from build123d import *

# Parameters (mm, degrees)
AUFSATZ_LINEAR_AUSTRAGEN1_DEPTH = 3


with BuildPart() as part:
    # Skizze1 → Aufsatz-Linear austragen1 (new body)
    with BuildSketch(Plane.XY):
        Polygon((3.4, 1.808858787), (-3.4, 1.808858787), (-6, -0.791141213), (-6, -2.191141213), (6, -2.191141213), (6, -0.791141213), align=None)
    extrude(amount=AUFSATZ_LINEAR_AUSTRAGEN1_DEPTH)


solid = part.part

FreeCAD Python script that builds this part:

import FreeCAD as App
import Part
import Sketcher

doc = App.newDocument("Part")
body = doc.addObject("PartDesign::Body", "Body")

sketch1 = body.newObject("Sketcher::SketchObject", "Sketch")
sketch1.AttachmentSupport = (doc.getObject("XY_Plane"), [""])
sketch1.MapMode = "FlatFace"
sketch1.addGeometry(Part.LineSegment(App.Vector(3.4, 1.808859, 0), App.Vector(-3.4, 1.808859, 0)), False)
sketch1.addGeometry(Part.LineSegment(App.Vector(-3.4, 1.808859, 0), App.Vector(-6, -0.791141, 0)), False)
sketch1.addGeometry(Part.LineSegment(App.Vector(-6, -0.791141, 0), App.Vector(-6, -2.191141, 0)), False)
sketch1.addGeometry(Part.LineSegment(App.Vector(-6, -2.191141, 0), App.Vector(6, -2.191141, 0)), False)
sketch1.addGeometry(Part.LineSegment(App.Vector(6, -2.191141, 0), App.Vector(6, -0.791141, 0)), False)
sketch1.addGeometry(Part.LineSegment(App.Vector(6, -0.791141, 0), App.Vector(3.4, 1.808859, 0)), False)
sketch1.addConstraint(Sketcher.Constraint("Coincident", 0, 2, 1, 1))
sketch1.addConstraint(Sketcher.Constraint("Coincident", 1, 2, 2, 1))
sketch1.addConstraint(Sketcher.Constraint("Coincident", 2, 2, 3, 1))
sketch1.addConstraint(Sketcher.Constraint("Coincident", 3, 2, 4, 1))
sketch1.addConstraint(Sketcher.Constraint("Coincident", 4, 2, 5, 1))
sketch1.addConstraint(Sketcher.Constraint("Coincident", 5, 2, 0, 1))
sketch1.addConstraint(Sketcher.Constraint("Horizontal", 0))
sketch1.addConstraint(Sketcher.Constraint("Vertical", 2))
sketch1.addConstraint(Sketcher.Constraint("Horizontal", 3))
sketch1.addConstraint(Sketcher.Constraint("Vertical", 4))
sketch1.addConstraint(Sketcher.Constraint("Symmetric", 1, 2, 4, 2, -2))
sketch1.addConstraint(Sketcher.Constraint("Perpendicular", 1, 5))
sketch1.addConstraint(Sketcher.Constraint("Equal", 1, 5))
sketch1.addConstraint(Sketcher.Constraint("DistanceX", 3, 1, 3, 2, 12.0))
sketch1.addConstraint(Sketcher.Constraint("DistanceX", 0, 2, 0, 1, 6.8))
sketch1.addConstraint(Sketcher.Constraint("DistanceY", 2, 2, 2, 1, 1.4))
sketch1.addConstraint(Sketcher.Constraint("DistanceY", -1, 1, 0, 2, 1.808859))
pad1 = body.newObject("PartDesign::Pad", "Pad")
pad1.Profile = sketch1
pad1.Length = 3

doc.recompute()
